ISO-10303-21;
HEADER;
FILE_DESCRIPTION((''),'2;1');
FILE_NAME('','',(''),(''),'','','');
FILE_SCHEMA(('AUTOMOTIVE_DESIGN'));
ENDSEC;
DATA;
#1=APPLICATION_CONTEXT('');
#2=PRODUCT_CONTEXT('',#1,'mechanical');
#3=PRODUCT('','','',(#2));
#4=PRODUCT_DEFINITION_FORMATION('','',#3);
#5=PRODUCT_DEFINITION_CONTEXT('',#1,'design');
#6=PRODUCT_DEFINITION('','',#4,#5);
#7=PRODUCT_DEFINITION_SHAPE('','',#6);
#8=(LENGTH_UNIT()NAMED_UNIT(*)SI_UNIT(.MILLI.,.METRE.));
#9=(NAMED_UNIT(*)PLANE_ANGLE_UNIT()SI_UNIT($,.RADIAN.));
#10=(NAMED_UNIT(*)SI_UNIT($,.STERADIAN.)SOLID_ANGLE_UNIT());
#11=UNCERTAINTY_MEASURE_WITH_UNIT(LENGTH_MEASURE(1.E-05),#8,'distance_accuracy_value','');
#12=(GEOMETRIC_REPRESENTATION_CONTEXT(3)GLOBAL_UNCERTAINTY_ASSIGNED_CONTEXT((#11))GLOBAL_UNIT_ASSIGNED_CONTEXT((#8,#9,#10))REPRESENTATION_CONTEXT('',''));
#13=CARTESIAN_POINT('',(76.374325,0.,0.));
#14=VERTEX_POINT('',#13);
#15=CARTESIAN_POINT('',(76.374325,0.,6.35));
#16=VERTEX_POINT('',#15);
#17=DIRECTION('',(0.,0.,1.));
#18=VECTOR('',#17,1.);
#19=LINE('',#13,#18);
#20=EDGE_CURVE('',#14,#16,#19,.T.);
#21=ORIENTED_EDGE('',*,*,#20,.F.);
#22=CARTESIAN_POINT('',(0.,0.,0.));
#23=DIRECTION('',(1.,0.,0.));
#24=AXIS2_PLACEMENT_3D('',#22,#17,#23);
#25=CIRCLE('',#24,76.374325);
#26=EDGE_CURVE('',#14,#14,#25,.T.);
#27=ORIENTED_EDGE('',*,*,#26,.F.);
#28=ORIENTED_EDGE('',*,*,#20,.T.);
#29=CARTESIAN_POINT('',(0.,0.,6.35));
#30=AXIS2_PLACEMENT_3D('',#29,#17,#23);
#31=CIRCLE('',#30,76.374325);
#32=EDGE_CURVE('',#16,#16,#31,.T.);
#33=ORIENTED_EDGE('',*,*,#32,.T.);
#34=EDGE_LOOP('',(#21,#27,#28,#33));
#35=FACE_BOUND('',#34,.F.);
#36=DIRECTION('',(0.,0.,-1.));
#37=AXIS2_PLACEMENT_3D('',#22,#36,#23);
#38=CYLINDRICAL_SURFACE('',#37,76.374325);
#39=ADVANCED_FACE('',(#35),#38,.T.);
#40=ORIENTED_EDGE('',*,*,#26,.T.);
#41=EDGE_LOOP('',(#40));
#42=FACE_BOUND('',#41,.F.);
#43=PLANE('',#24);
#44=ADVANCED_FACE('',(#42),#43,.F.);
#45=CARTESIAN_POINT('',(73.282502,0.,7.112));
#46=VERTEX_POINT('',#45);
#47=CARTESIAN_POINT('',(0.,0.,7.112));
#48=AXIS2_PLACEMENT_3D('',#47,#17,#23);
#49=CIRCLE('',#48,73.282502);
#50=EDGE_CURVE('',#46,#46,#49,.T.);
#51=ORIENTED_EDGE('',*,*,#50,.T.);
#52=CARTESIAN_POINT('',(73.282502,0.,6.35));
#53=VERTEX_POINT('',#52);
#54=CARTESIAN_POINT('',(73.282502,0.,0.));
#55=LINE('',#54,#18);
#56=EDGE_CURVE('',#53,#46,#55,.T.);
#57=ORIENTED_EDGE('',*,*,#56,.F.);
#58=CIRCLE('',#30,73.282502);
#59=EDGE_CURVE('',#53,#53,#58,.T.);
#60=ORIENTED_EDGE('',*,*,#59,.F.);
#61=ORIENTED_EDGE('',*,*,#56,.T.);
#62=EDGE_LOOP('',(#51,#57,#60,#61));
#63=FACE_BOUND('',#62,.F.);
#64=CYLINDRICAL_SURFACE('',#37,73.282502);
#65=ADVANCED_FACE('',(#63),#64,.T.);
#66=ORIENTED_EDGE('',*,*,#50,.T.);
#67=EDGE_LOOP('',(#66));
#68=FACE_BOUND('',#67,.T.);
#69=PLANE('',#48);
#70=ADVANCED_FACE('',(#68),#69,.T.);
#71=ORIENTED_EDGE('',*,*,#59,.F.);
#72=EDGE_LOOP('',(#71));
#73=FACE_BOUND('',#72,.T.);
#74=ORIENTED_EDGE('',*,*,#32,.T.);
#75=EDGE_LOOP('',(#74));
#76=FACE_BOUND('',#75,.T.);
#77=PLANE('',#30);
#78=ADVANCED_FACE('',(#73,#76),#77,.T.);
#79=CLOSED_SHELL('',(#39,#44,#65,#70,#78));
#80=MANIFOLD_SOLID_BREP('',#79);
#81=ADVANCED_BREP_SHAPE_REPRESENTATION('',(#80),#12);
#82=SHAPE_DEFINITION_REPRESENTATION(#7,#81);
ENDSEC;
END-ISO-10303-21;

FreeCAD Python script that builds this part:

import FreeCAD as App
import Part
import Sketcher

V = App.Vector
Q = App.Units.Quantity

doc = App.newDocument("Part")
body = doc.addObject("PartDesign::Body", "Body")

# Sketch on XY plane
sketch1 = body.newObject("Sketcher::SketchObject", "Sketch")
sketch1.AttachmentSupport = (doc.getObject("XY_Plane"), [""])
sketch1.MapMode = "FlatFace"
sketch1.addGeometry(Part.Circle(V(0, 0, 0), V(0, 0, 1), 76.374325), False)
sketch1.addGeometry(Part.Circle(V(0, 0, 0), V(0, 0, 1), 73.282502), False)
sketch1.addConstraint(Sketcher.Constraint("Coincident", 0, 3, -1, 1))
sketch1.addConstraint(Sketcher.Constraint("Coincident", 1, 3, -1, 1))
sketch1.addConstraint(Sketcher.Constraint("Diameter", 0, 152.74865))
sketch1.addConstraint(Sketcher.Constraint("Diameter", 1, 146.565004))
pad1 = body.newObject("PartDesign::Pad", "Pad")
pad1.Profile = sketch1
pad1.Length = Q("0.25 in")

# Sketch on XY plane
sketch2 = body.newObject("Sketcher::SketchObject", "Sketch001")
sketch2.AttachmentSupport = (doc.getObject("XY_Plane"), [""])
sketch2.MapMode = "FlatFace"
sketch2.addGeometry(Part.Circle(V(0, 0, 0), V(0, 0, 1), 73.282502), False)
sketch2.addConstraint(Sketcher.Constraint("Coincident", 0, 3, -1, 1))
sketch2.addConstraint(Sketcher.Constraint("Diameter", 0, 146.565004))
pad2 = body.newObject("PartDesign::Pad", "Pad001")
pad2.Profile = sketch2
pad2.Length = Q("0.28 in")

doc.recompute()
